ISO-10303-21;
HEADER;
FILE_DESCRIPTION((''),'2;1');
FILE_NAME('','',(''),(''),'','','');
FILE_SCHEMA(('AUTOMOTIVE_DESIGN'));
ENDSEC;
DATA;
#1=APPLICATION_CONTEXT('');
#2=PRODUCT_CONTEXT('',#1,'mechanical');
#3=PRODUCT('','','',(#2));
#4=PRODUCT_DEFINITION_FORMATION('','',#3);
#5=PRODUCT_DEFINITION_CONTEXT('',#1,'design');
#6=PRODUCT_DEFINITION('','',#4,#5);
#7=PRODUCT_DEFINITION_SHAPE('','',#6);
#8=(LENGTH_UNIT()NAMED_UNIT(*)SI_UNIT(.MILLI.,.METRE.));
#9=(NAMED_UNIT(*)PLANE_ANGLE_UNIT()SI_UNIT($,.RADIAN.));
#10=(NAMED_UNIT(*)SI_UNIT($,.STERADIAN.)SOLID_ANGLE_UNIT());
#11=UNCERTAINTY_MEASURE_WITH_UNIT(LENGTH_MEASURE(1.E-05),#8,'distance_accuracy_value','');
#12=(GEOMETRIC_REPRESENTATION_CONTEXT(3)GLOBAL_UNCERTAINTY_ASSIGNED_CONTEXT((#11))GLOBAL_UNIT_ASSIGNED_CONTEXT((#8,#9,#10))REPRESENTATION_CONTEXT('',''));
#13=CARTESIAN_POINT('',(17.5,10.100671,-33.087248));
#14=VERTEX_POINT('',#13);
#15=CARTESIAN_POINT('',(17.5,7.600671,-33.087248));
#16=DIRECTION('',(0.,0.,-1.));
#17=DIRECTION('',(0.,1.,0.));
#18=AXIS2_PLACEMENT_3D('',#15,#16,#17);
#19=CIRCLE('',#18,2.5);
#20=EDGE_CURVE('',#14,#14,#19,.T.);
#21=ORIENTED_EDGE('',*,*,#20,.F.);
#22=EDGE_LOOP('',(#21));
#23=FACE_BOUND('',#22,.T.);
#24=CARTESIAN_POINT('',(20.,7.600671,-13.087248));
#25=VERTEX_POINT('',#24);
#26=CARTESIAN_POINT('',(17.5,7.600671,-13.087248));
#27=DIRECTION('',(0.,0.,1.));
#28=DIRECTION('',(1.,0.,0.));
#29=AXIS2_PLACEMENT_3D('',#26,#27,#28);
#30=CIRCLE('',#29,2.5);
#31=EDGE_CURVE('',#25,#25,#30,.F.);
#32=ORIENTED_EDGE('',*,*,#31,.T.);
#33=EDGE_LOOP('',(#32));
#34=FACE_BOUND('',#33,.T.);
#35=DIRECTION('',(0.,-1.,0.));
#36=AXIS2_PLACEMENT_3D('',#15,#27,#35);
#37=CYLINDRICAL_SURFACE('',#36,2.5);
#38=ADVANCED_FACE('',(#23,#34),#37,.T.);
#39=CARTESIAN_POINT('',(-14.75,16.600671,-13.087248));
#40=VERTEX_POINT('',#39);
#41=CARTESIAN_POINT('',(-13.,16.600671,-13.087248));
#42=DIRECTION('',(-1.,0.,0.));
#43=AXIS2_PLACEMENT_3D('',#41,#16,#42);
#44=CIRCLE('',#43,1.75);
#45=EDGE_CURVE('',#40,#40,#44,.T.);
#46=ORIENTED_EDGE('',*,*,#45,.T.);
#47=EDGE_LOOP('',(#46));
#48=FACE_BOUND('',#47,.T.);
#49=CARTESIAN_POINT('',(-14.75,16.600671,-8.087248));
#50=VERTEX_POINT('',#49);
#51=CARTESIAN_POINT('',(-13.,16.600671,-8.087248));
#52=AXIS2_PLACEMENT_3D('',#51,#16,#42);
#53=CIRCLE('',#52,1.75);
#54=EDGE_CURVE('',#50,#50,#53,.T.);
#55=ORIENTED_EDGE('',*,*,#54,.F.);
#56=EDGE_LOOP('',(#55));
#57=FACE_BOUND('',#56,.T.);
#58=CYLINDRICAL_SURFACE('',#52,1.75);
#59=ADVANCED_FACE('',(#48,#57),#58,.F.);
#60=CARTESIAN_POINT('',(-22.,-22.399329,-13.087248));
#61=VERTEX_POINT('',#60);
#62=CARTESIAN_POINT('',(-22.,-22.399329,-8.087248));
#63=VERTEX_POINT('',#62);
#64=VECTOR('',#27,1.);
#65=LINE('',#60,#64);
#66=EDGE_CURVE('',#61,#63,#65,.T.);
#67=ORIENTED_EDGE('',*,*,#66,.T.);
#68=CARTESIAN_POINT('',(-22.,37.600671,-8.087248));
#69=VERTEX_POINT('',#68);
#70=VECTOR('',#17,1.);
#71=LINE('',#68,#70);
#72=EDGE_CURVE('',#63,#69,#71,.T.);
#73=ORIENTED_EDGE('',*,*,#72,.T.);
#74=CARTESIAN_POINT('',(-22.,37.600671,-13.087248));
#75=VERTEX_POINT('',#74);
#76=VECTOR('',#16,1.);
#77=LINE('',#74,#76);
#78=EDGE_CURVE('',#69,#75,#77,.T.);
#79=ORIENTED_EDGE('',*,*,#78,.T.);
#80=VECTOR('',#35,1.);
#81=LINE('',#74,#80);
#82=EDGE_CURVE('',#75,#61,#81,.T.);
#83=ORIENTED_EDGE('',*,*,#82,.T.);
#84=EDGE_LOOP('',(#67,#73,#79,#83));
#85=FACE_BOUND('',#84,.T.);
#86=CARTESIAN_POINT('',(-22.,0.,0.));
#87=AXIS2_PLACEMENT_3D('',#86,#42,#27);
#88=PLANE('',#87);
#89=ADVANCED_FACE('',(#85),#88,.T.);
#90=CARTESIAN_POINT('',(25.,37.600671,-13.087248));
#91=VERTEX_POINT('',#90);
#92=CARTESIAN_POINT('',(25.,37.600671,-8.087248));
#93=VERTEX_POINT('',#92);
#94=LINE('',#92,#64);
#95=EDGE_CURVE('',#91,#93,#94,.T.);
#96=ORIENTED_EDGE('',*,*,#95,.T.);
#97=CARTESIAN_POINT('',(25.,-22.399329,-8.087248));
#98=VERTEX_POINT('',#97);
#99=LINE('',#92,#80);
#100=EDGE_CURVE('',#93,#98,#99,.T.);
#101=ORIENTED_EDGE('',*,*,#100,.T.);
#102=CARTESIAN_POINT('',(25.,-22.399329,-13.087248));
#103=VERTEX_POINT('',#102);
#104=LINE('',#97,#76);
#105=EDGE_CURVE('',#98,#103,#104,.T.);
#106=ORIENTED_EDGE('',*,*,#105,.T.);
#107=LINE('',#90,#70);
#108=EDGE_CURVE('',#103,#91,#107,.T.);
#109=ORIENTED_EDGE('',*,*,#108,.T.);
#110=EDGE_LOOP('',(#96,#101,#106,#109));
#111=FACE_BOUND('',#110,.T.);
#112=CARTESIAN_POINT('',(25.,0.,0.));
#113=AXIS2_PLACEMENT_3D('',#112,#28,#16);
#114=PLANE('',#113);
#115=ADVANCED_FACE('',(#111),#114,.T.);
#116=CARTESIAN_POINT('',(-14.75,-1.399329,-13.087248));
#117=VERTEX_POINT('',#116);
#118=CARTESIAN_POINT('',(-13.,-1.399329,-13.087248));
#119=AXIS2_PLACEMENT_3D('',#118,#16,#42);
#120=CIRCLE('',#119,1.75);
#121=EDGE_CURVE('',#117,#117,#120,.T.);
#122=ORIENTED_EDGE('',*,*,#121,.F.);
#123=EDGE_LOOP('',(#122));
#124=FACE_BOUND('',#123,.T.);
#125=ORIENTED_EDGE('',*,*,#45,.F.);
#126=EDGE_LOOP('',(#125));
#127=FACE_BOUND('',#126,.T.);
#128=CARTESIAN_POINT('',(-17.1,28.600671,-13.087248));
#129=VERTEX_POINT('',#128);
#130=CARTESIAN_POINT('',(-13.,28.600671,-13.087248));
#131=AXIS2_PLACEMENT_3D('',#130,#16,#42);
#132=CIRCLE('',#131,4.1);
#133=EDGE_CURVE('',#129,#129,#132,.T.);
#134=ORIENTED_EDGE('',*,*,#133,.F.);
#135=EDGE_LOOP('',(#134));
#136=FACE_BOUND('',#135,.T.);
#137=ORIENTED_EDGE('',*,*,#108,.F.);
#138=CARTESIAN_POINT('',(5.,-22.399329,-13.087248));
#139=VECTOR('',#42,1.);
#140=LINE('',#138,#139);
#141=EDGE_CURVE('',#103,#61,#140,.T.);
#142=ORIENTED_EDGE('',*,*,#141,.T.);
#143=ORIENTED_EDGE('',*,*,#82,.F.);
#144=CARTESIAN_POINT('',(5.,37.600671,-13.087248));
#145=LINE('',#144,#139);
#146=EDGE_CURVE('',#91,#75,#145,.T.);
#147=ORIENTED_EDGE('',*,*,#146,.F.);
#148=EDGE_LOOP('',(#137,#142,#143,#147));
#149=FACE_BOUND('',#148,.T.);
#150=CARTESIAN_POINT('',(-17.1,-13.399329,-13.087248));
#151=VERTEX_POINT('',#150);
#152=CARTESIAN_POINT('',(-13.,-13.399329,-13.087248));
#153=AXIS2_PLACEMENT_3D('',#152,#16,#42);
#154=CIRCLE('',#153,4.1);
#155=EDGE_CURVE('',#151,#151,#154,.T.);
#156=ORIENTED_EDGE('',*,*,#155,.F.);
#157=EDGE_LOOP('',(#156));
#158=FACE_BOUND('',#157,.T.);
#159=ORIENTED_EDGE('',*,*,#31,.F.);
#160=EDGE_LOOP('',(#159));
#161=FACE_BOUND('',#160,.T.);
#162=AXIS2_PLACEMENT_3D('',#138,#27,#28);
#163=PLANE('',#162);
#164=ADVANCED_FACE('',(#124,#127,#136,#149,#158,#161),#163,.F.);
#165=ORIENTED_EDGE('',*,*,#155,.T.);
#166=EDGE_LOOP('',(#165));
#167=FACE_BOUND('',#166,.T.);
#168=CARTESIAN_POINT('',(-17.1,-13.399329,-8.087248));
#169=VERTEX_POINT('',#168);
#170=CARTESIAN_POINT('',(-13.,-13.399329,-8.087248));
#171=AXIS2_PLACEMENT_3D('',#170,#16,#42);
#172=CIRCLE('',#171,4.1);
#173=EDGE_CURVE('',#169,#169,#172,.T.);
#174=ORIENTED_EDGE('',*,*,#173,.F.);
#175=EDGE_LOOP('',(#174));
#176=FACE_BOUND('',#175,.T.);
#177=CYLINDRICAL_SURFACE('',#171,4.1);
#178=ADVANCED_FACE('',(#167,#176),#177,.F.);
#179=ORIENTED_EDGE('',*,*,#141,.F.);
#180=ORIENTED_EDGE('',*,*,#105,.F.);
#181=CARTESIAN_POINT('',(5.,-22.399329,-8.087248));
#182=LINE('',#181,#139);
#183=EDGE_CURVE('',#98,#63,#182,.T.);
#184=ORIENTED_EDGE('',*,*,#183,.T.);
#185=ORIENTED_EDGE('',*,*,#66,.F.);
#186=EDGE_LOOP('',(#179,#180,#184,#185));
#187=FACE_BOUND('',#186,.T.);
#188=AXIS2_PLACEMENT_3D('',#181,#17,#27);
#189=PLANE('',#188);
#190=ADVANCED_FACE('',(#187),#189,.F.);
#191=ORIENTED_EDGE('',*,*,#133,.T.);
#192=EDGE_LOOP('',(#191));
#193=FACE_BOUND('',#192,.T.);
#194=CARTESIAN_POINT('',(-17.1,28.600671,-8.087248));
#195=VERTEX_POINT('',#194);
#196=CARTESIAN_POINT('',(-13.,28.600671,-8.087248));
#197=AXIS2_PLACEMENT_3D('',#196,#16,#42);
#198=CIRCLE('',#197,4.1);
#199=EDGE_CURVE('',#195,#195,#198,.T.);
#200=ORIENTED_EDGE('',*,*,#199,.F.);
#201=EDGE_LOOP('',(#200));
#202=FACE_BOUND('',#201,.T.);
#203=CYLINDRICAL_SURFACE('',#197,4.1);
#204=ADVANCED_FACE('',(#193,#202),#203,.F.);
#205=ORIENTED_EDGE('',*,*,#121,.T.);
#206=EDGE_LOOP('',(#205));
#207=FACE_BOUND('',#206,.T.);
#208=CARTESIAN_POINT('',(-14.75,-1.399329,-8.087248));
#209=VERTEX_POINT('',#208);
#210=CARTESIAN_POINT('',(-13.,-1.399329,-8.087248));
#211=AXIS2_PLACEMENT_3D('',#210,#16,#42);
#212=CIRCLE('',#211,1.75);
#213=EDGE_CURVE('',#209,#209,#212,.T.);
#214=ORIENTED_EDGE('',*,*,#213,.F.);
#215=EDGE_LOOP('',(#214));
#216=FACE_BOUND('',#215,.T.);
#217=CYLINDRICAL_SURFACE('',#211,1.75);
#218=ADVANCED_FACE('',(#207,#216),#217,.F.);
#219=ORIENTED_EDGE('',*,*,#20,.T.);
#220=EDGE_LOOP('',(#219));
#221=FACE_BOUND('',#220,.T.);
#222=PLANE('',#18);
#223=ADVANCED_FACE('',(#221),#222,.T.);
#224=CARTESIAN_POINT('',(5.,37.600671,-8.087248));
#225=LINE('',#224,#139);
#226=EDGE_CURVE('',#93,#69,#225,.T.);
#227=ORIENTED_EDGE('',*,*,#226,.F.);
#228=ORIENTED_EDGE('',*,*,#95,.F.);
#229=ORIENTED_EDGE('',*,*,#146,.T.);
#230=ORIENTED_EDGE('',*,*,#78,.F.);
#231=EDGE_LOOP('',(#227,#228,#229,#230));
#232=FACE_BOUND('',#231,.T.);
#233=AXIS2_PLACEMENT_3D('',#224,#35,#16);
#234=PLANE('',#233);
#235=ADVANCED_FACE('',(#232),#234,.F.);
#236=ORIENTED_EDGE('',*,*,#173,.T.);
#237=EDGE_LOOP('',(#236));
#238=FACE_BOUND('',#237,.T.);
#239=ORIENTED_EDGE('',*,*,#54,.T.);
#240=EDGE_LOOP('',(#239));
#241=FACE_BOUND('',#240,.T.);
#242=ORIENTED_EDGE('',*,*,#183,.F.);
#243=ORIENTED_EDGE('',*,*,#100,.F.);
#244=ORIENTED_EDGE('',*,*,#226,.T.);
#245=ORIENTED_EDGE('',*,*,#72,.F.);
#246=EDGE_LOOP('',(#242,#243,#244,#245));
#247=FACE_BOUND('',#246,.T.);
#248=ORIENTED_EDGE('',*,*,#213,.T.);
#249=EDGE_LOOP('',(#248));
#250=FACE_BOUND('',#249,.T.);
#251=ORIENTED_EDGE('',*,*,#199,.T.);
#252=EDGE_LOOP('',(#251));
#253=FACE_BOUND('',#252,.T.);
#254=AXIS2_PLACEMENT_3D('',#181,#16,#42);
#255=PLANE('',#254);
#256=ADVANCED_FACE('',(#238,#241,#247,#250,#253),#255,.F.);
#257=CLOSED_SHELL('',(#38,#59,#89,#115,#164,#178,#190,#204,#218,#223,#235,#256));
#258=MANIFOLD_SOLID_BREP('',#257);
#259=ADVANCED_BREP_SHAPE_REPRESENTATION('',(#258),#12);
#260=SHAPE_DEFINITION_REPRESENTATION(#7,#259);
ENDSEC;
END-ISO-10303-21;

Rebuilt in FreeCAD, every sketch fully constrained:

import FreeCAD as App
import Part
import Sketcher
Q = App.Units.Quantity

doc = App.newDocument("Part")
params = doc.addObject("Spreadsheet::Sheet", "Params")
for row, (alias, value) in enumerate([
    ("sketch1_width", "60 mm"),
    ("sketch1_height", "5 mm"),
    ("pad1_length", "5 mm"),
    ("sketch2_width", "60 mm"),
    ("sketch2_height", "5 mm"),
    ("pad2_length", "20 mm"),
    ("sketch3_diameter", "5 mm"),
    ("pad3_length", "20 mm"),
    ("sketch4_width", "60 mm"),
    ("sketch4_height", "5 mm"),
    ("pad4_length", "22 mm"),
    ("sketch5_diameter", "8.2 mm"),
    ("sketch5_diameter2", "3.5 mm"),
], start=1):
    params.set(f"A{row}", alias)
    params.set(f"B{row}", "=" + value)
    params.setAlias(f"B{row}", alias)

body = doc.addObject("PartDesign::Body", "Body")

sketch1 = body.newObject("Sketcher::SketchObject", "Sketch")
sketch1.AttachmentSupport = (doc.getObject("YZ_Plane"), [""])
sketch1.MapMode = "FlatFace"
sketch1.addGeometry(Part.LineSegment(App.Vector(37.600671, -8.087248, 0), App.Vector(-22.399329, -8.087248, 0)), False)
sketch1.addGeometry(Part.LineSegment(App.Vector(-22.399329, -8.087248, 0), App.Vector(-22.399329, -13.087248, 0)), False)
sketch1.addGeometry(Part.LineSegment(App.Vector(-22.399329, -13.087248, 0), App.Vector(37.600671, -13.087248, 0)), False)
sketch1.addGeometry(Part.LineSegment(App.Vector(37.600671, -13.087248, 0), App.Vector(37.600671, -8.087248, 0)), False)
sketch1.addConstraint(Sketcher.Constraint("Coincident", 0, 2, 1, 1))
sketch1.addConstraint(Sketcher.Constraint("Coincident", 1, 2, 2, 1))
sketch1.addConstraint(Sketcher.Constraint("Coincident", 2, 2, 3, 1))
sketch1.addConstraint(Sketcher.Constraint("Coincident", 3, 2, 0, 1))
sketch1.addConstraint(Sketcher.Constraint("Horizontal", 0))
sketch1.addConstraint(Sketcher.Constraint("Vertical", 1))
sketch1.addConstraint(Sketcher.Constraint("Horizontal", 2))
sketch1.addConstraint(Sketcher.Constraint("Vertical", 3))
sketch1.addConstraint(Sketcher.Constraint("DistanceX", 0, 2, 0, 1, Q("60 mm")))
sketch1.addConstraint(Sketcher.Constraint("DistanceY", 1, 2, 1, 1, Q("5 mm")))
sketch1.addConstraint(Sketcher.Constraint("DistanceX", 0, 2, -1, 1, Q("22.399329 mm")))
sketch1.addConstraint(Sketcher.Constraint("DistanceY", 0, 2, -1, 1, Q("8.087248 mm")))
sketch1.setExpression("Constraints[8]", "Params.sketch1_width")
sketch1.setExpression("Constraints[9]", "Params.sketch1_height")
pad1 = body.newObject("PartDesign::Pad", "Pad")
pad1.Profile = sketch1
pad1.setExpression("Length", "Params.pad1_length")

sketch2 = body.newObject("Sketcher::SketchObject", "Sketch001")
sketch2.AttachmentSupport = (doc.getObject("YZ_Plane"), [""])
sketch2.MapMode = "FlatFace"
sketch2.AttachmentOffset = App.Placement(App.Vector(0, 0, 5), App.Rotation())
sketch2.addGeometry(Part.LineSegment(App.Vector(37.600671, -8.087248, 0), App.Vector(-22.399329, -8.087248, 0)), False)
sketch2.addGeometry(Part.LineSegment(App.Vector(-22.399329, -8.087248, 0), App.Vector(-22.399329, -13.087248, 0)), False)
sketch2.addGeometry(Part.LineSegment(App.Vector(-22.399329, -13.087248, 0), App.Vector(37.600671, -13.087248, 0)), False)
sketch2.addGeometry(Part.LineSegment(App.Vector(37.600671, -13.087248, 0), App.Vector(37.600671, -8.087248, 0)), False)
sketch2.addConstraint(Sketcher.Constraint("Coincident", 0, 2, 1, 1))
sketch2.addConstraint(Sketcher.Constraint("Coincident", 1, 2, 2, 1))
sketch2.addConstraint(Sketcher.Constraint("Coincident", 2, 2, 3, 1))
sketch2.addConstraint(Sketcher.Constraint("Coincident", 3, 2, 0, 1))
sketch2.addConstraint(Sketcher.Constraint("Horizontal", 0))
sketch2.addConstraint(Sketcher.Constraint("Vertical", 1))
sketch2.addConstraint(Sketcher.Constraint("Horizontal", 2))
sketch2.addConstraint(Sketcher.Constraint("Vertical", 3))
sketch2.addConstraint(Sketcher.Constraint("DistanceX", 0, 2, 0, 1, Q("60 mm")))
sketch2.addConstraint(Sketcher.Constraint("DistanceY", 1, 2, 1, 1, Q("5 mm")))
sketch2.addConstraint(Sketcher.Constraint("DistanceX", 0, 2, -1, 1, Q("22.399329 mm")))
sketch2.addConstraint(Sketcher.Constraint("DistanceY", 0, 2, -1, 1, Q("8.087248 mm")))
sketch2.setExpression("Constraints[8]", "Params.sketch2_width")
sketch2.setExpression("Constraints[9]", "Params.sketch2_height")
pad2 = body.newObject("PartDesign::Pad", "Pad001")
pad2.Profile = sketch2
pad2.setExpression("Length", "Params.pad2_length")

sketch3 = body.newObject("Sketcher::SketchObject", "Sketch002")
sketch3.AttachmentSupport = (doc.getObject("XY_Plane"), [""])
sketch3.MapMode = "FlatFace"
sketch3.AttachmentOffset = App.Placement(App.Vector(0, 0, -13.087248), App.Rotation())
sketch3.addGeometry(Part.Circle(App.Vector(17.5, 7.600671, 0), App.Vector(0, 0, 1), 2.5), False)
sketch3.addConstraint(Sketcher.Constraint("Diameter", 0, Q("5 mm")))
sketch3.addConstraint(Sketcher.Constraint("DistanceX", -1, 1, 0, 3, Q("17.5 mm")))
sketch3.addConstraint(Sketcher.Constraint("DistanceY", -1, 1, 0, 3, Q("7.600671 mm")))
sketch3.setExpression("Constraints[0]", "Params.sketch3_diameter")
pad3 = body.newObject("PartDesign::Pad", "Pad002")
pad3.Profile = sketch3
pad3.setExpression("Length", "Params.pad3_length")
pad3.Reversed = True

sketch4 = body.newObject("Sketcher::SketchObject", "Sketch003")
sketch4.AttachmentSupport = (doc.getObject("YZ_Plane"), [""])
sketch4.MapMode = "FlatFace"
sketch4.addGeometry(Part.LineSegment(App.Vector(37.600671, -13.087248, 0), App.Vector(-22.399329, -13.087248, 0)), False)
sketch4.addGeometry(Part.LineSegment(App.Vector(-22.399329, -13.087248, 0), App.Vector(-22.399329, -8.087248, 0)), False)
sketch4.addGeometry(Part.LineSegment(App.Vector(-22.399329, -8.087248, 0), App.Vector(37.600671, -8.087248, 0)), False)
sketch4.addGeometry(Part.LineSegment(App.Vector(37.600671, -8.087248, 0), App.Vector(37.600671, -13.087248, 0)), False)
sketch4.addConstraint(Sketcher.Constraint("Coincident", 0, 2, 1, 1))
sketch4.addConstraint(Sketcher.Constraint("Coincident", 1, 2, 2, 1))
sketch4.addConstraint(Sketcher.Constraint("Coincident", 2, 2, 3, 1))
sketch4.addConstraint(Sketcher.Constraint("Coincident", 3, 2, 0, 1))
sketch4.addConstraint(Sketcher.Constraint("Horizontal", 0))
sketch4.addConstraint(Sketcher.Constraint("Vertical", 1))
sketch4.addConstraint(Sketcher.Constraint("Horizontal", 2))
sketch4.addConstraint(Sketcher.Constraint("Vertical", 3))
sketch4.addConstraint(Sketcher.Constraint("DistanceX", 0, 2, 0, 1, Q("60 mm")))
sketch4.addConstraint(Sketcher.Constraint("DistanceY", 1, 1, 1, 2, Q("5 mm")))
sketch4.addConstraint(Sketcher.Constraint("DistanceX", 0, 2, -1, 1, Q("22.399329 mm")))
sketch4.addConstraint(Sketcher.Constraint("DistanceY", 0, 2, -1, 1, Q("13.087248 mm")))
sketch4.setExpression("Constraints[8]", "Params.sketch4_width")
sketch4.setExpression("Constraints[9]", "Params.sketch4_height")
pad4 = body.newObject("PartDesign::Pad", "Pad003")
pad4.Profile = sketch4
pad4.setExpression("Length", "Params.pad4_length")
pad4.Reversed = True

sketch5 = body.newObject("Sketcher::SketchObject", "Sketch004")
sketch5.AttachmentSupport = (doc.getObject("XY_Plane"), [""])
sketch5.MapMode = "FlatFace"
sketch5.AttachmentOffset = App.Placement(App.Vector(0, 0, -13.087248), App.Rotation())
sketch5.addGeometry(Part.Circle(App.Vector(-13, 28.600671, 0), App.Vector(0, 0, 1), 4.1), False)
sketch5.addGeometry(Part.Circle(App.Vector(-13, -13.399329, 0), App.Vector(0, 0, 1), 4.1), False)
sketch5.addGeometry(Part.Circle(App.Vector(-13, -1.399329, 0), App.Vector(0, 0, 1), 1.75), False)
sketch5.addGeometry(Part.Circle(App.Vector(-13, 16.600671, 0), App.Vector(0, 0, 1), 1.75), False)
sketch5.addConstraint(Sketcher.Constraint("Equal", 0, 1))
sketch5.addConstraint(Sketcher.Constraint("Equal", 2, 3))
sketch5.addConstraint(Sketcher.Constraint("Vertical", 0, 3, 1, 3))
sketch5.addConstraint(Sketcher.Constraint("Vertical", 1, 3, 2, 3))
sketch5.addConstraint(Sketcher.Constraint("Vertical", 2, 3, 3, 3))
sketch5.addConstraint(Sketcher.Constraint("Diameter", 0, Q("8.2 mm")))
sketch5.addConstraint(Sketcher.Constraint("Diameter", 2, Q("3.5 mm")))
sketch5.addConstraint(Sketcher.Constraint("DistanceX", 0, 3, -1, 1, Q("13 mm")))
sketch5.addConstraint(Sketcher.Constraint("DistanceY", 1, 3, 0, 3, Q("42 mm")))
sketch5.addConstraint(Sketcher.Constraint("DistanceY", 1, 3, 2, 3, Q("12 mm")))
sketch5.addConstraint(Sketcher.Constraint("DistanceY", 3, 3, 0, 3, Q("12 mm")))
sketch5.addConstraint(Sketcher.Constraint("DistanceY", -1, 1, 0, 3, Q("28.600671 mm")))
sketch5.setExpression("Constraints[5]", "Params.sketch5_diameter")
sketch5.setExpression("Constraints[6]", "Params.sketch5_diameter2")
pocket1 = body.newObject("PartDesign::Pocket", "Pocket")
pocket1.Profile = sketch5
pocket1.Type = "ThroughAll"
pocket1.Reversed = True

doc.recompute()
